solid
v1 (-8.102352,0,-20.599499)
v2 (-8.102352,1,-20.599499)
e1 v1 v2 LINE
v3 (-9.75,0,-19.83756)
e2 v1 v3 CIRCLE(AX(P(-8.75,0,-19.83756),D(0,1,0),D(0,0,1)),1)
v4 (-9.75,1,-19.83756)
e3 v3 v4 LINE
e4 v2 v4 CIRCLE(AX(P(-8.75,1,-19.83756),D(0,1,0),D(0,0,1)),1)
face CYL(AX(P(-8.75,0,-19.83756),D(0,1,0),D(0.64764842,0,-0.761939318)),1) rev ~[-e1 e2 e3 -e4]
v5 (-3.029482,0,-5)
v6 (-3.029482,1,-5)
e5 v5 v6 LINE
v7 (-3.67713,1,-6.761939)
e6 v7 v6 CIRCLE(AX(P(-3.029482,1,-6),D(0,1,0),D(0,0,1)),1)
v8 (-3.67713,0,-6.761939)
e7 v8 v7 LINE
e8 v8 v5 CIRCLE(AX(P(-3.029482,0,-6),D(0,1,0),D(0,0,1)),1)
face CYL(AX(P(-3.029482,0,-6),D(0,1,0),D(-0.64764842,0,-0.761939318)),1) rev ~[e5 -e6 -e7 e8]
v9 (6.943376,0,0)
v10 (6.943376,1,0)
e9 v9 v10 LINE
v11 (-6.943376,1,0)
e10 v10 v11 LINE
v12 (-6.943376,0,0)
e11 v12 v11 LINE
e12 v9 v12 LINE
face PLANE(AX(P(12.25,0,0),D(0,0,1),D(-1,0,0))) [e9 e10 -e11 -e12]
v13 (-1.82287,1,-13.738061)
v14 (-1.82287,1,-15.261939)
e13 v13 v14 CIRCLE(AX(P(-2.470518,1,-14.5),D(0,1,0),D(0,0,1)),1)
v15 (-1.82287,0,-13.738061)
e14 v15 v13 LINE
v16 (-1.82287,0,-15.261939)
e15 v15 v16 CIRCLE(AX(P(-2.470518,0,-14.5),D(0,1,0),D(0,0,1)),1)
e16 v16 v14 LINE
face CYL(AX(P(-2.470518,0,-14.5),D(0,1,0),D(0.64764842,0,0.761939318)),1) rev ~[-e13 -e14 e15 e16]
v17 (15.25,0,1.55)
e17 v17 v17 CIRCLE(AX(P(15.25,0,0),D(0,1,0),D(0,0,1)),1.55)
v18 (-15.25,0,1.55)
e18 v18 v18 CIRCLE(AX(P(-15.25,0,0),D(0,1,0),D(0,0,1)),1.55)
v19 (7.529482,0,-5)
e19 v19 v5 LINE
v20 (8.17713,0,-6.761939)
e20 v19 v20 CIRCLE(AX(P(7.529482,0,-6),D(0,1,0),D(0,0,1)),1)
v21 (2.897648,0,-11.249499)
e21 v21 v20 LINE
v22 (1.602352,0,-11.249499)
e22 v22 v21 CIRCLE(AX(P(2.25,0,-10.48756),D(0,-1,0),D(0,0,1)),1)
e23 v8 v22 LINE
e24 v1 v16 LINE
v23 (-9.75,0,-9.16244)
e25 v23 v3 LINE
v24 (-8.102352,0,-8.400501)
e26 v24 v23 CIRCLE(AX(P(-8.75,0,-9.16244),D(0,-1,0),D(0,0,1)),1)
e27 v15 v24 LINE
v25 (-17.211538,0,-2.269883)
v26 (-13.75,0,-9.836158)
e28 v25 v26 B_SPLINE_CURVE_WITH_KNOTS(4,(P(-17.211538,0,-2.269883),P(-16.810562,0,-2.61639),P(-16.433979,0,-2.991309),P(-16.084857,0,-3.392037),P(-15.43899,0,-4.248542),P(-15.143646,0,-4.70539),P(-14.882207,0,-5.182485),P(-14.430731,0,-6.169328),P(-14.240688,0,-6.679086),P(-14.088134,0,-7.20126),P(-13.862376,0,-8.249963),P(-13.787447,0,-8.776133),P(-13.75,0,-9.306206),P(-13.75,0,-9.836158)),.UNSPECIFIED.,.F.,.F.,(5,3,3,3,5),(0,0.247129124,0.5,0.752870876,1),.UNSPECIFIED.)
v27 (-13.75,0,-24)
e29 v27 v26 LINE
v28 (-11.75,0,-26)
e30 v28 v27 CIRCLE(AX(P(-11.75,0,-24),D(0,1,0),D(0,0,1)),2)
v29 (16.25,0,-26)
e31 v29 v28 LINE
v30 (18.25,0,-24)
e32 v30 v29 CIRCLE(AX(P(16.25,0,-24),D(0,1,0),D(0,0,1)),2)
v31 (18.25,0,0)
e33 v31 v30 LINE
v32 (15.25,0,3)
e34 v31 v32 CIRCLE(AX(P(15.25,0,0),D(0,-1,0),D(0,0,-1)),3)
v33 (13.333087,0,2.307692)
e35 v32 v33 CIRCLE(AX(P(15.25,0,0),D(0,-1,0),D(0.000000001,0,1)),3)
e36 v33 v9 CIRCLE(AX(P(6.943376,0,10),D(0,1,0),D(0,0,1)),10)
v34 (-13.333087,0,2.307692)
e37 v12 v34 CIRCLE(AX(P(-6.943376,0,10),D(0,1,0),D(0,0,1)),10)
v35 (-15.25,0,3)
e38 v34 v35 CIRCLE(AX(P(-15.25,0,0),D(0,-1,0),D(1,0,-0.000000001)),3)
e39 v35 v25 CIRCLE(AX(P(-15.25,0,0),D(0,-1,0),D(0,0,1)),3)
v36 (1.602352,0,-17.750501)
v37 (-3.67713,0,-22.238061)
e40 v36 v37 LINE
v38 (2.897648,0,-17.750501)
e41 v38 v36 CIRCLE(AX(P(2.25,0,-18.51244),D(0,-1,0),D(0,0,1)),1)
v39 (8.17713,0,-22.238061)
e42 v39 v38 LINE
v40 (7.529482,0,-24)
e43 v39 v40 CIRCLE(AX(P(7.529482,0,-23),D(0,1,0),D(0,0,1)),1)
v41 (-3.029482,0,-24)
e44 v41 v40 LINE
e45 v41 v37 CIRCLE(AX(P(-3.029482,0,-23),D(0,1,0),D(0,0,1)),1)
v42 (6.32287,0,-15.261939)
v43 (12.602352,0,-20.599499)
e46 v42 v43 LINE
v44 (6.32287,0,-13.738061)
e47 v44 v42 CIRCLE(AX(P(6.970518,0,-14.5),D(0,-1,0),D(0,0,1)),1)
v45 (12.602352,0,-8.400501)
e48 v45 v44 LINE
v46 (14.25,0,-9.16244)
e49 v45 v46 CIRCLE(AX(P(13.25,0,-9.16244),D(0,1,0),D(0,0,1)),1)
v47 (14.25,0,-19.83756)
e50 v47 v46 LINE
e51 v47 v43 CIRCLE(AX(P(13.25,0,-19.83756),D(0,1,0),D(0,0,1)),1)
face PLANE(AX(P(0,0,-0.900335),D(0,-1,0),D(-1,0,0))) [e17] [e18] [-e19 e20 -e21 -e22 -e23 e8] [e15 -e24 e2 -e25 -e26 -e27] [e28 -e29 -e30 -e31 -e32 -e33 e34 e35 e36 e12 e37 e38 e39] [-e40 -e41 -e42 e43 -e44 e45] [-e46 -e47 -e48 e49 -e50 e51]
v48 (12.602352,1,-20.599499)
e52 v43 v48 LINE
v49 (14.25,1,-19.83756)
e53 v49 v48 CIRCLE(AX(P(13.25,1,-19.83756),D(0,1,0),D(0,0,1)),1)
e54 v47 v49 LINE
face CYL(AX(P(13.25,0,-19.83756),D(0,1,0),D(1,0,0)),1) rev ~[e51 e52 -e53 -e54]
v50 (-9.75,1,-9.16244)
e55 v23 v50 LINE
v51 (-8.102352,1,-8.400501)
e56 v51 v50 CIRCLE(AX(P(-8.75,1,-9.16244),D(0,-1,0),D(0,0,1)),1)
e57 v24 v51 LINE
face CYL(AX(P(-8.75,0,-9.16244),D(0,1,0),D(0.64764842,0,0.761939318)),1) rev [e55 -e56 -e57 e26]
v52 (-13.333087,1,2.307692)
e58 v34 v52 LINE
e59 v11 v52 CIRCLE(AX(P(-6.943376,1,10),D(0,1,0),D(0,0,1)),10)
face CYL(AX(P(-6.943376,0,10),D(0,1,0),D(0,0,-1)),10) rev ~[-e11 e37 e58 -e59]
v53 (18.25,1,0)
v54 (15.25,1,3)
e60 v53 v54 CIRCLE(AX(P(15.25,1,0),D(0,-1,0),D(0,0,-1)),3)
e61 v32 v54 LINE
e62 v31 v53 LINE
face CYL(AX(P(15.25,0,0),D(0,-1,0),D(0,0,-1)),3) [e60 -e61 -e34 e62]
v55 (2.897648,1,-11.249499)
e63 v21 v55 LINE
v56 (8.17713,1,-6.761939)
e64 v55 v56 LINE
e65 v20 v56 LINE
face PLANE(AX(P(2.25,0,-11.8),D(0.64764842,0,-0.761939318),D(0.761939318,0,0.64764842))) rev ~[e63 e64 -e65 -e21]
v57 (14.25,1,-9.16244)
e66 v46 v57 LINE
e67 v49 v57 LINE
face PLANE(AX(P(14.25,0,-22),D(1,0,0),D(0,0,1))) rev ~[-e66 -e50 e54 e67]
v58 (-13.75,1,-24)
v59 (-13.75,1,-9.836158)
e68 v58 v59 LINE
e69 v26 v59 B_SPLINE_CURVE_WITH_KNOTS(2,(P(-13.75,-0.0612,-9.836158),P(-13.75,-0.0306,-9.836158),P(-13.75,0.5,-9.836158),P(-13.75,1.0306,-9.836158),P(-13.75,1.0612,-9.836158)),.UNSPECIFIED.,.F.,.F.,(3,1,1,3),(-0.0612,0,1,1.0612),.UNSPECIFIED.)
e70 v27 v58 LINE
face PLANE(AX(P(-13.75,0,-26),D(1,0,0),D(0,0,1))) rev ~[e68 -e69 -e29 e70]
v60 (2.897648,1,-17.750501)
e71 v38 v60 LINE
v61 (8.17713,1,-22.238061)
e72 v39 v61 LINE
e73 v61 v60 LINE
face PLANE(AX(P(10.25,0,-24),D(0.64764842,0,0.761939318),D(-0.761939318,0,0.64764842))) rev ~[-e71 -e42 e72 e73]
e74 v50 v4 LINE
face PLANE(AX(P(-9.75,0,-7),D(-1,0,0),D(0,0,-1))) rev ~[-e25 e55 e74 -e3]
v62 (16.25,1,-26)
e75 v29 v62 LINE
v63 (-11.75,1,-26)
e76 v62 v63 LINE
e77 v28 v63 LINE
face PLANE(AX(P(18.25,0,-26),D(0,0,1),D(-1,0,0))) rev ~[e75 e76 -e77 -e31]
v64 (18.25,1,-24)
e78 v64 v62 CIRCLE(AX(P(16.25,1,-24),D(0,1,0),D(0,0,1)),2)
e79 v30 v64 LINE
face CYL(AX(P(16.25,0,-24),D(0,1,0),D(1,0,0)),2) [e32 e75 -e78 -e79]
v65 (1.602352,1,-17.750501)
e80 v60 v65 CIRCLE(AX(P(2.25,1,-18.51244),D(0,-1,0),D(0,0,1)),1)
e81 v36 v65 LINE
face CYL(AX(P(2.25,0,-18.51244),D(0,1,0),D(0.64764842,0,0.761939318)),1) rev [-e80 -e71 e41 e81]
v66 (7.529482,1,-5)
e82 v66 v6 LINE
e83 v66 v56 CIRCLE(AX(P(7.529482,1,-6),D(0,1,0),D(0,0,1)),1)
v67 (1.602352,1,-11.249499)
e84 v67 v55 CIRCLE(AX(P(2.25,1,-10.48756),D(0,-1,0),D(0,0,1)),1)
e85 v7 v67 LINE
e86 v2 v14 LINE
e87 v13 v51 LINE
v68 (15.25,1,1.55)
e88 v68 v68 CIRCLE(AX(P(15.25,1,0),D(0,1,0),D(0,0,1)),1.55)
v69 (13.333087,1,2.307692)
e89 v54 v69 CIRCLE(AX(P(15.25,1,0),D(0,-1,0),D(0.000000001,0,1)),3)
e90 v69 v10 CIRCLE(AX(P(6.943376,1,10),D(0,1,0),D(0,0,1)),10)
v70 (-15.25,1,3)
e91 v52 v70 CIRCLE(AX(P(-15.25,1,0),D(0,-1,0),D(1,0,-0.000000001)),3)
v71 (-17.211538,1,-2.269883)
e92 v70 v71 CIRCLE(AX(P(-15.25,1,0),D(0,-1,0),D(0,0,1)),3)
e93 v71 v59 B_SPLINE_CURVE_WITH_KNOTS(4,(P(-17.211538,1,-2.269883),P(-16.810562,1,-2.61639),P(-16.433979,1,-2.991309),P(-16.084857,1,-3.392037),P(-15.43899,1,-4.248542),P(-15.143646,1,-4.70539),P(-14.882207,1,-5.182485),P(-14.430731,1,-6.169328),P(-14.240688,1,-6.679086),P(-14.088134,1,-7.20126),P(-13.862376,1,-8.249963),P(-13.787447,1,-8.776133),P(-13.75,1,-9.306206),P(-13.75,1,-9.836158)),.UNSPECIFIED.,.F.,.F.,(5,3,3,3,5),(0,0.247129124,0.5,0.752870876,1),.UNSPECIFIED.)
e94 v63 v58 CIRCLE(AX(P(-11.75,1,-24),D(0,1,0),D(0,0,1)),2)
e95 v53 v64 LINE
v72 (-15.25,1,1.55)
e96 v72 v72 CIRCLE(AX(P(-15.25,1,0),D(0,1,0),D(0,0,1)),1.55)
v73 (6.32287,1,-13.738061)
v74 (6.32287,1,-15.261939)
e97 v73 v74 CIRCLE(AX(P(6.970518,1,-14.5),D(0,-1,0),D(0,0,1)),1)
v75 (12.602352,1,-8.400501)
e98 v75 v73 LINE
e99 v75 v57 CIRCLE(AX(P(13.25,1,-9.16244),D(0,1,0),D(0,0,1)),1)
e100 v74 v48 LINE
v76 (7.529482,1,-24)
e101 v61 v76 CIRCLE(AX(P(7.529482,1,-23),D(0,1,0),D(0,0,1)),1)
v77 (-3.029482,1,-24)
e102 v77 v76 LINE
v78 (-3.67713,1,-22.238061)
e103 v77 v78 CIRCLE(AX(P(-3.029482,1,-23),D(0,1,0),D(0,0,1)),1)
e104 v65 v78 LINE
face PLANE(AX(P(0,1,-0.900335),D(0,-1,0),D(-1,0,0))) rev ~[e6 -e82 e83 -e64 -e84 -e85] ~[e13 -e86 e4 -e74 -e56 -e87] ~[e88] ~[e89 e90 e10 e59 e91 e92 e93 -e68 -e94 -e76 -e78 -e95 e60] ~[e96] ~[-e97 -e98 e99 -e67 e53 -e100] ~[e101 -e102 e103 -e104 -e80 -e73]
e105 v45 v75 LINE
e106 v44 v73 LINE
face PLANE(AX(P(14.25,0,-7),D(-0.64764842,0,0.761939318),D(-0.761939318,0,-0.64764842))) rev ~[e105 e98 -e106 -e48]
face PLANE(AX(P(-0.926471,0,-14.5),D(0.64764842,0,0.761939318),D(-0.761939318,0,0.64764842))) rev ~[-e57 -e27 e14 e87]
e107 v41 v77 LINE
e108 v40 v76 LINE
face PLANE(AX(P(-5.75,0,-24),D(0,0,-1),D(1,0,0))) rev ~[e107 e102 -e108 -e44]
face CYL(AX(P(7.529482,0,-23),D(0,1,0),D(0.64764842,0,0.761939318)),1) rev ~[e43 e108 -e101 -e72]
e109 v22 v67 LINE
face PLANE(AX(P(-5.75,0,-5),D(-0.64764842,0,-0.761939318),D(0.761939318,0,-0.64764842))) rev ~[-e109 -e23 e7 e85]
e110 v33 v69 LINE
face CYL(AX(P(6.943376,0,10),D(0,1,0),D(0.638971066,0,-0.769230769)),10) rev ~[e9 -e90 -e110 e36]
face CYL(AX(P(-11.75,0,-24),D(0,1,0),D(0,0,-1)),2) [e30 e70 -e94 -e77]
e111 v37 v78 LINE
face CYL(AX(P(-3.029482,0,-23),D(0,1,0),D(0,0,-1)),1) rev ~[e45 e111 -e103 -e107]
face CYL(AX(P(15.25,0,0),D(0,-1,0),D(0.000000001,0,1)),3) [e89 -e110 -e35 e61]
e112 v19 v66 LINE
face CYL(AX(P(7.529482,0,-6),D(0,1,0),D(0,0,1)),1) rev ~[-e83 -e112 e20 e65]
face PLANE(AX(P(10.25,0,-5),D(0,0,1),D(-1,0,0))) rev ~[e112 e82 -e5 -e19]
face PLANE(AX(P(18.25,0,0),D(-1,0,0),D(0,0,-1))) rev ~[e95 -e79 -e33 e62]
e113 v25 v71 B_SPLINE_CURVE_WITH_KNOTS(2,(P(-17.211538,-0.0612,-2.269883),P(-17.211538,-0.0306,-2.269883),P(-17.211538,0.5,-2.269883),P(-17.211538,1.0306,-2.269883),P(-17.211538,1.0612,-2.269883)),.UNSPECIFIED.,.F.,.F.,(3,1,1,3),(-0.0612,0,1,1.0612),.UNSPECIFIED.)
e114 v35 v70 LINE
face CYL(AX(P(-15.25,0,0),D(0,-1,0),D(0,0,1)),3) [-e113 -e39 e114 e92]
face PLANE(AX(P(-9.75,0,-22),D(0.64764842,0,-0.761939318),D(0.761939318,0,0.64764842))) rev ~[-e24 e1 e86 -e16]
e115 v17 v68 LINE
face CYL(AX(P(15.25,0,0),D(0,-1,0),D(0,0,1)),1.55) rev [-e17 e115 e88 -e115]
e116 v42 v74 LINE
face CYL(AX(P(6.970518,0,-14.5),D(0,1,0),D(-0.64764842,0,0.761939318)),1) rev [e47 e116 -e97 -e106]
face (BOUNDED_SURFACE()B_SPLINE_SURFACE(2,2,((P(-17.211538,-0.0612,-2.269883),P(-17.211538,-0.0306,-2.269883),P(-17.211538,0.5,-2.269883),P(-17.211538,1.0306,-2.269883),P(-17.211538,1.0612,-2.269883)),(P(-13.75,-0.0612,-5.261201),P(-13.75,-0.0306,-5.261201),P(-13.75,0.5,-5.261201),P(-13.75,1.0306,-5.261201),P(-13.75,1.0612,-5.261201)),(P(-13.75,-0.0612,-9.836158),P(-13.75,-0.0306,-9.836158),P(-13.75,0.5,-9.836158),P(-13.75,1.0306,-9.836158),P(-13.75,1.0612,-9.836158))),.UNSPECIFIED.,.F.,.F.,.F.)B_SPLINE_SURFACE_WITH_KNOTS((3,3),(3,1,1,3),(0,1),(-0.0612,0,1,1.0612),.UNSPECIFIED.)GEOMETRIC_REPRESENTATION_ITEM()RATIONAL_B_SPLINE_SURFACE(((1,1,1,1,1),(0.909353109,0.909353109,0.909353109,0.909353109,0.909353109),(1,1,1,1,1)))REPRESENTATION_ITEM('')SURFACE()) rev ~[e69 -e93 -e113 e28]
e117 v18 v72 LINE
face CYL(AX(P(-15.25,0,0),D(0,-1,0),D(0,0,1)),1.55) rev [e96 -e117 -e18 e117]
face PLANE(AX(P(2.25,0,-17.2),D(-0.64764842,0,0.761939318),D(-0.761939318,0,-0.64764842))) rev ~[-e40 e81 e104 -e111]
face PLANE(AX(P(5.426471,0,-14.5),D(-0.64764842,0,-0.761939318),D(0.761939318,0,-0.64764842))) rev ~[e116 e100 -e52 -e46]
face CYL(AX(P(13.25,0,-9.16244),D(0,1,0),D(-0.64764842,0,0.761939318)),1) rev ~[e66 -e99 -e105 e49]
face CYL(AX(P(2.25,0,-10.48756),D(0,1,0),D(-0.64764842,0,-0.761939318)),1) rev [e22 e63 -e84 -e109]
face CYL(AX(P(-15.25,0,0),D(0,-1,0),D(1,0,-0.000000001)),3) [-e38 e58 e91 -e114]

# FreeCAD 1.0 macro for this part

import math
import FreeCAD as App
import Part
import Sketcher
from FreeCAD import Vector


def edges_at(feature, points):
    """Names of the edges that pass closest to the given points."""
    edges = feature.Shape.Edges
    near = lambda p: min(range(len(edges)), key=lambda i: edges[i].distToShape(Part.Vertex(*p))[0])
    return sorted({f"Edge{near(p) + 1}" for p in points})

doc = App.newDocument("Part")
body = doc.addObject("PartDesign::Body", "Body")

# Sketch on XZ plane
sketch1 = body.newObject("Sketcher::SketchObject", "Sketch")
sketch1.AttachmentSupport = (doc.getObject("XZ_Plane"), [""])
sketch1.MapMode = "FlatFace"
sketch1.addGeometry([
    Part.LineSegment(Vector(-13.8, -26, 0), Vector(-13.8, -3, 0)),  # 0
    Part.LineSegment(Vector(-13.8, -3, 0), Vector(-15.2, -3, 0)),  # 1
    Part.ArcOfCircle(Part.Circle(Vector(-15.2, 0, 0), Vector(0, 0, 1), 3), math.radians(90), math.radians(270)),  # 2
    Part.ArcOfCircle(Part.Circle(Vector(-15.2, 0, 0), Vector(0, 0, 1), 3), math.radians(0), math.radians(90)),  # 3
    Part.LineSegment(Vector(-12.2, 0, 0), Vector(12.2, 0, 0)),  # 4
    Part.ArcOfCircle(Part.Circle(Vector(15.2, 0, 0), Vector(0, 0, 1), 3), math.radians(90), math.radians(180)),  # 5
    Part.ArcOfCircle(Part.Circle(Vector(15.2, 0, 0), Vector(0, 0, 1), 3), math.radians(0), math.radians(90)),  # 6
    Part.LineSegment(Vector(18.2, 0, 0), Vector(18.2, -26, 0)),  # 7
    Part.LineSegment(Vector(18.2, -26, 0), Vector(-13.8, -26, 0)),  # 8
    Part.LineSegment(Vector(-5.8, -5, 0), Vector(2.2, -11.8, 0)),  # 9
    Part.LineSegment(Vector(2.2, -11.8, 0), Vector(10.2, -5, 0)),  # 10
    Part.LineSegment(Vector(10.2, -5, 0), Vector(-5.8, -5, 0)),  # 11
    Part.LineSegment(Vector(-0.9, -14.5, 0), Vector(-9.8, -7, 0)),  # 12
    Part.LineSegment(Vector(-9.8, -7, 0), Vector(-9.8, -22, 0)),  # 13
    Part.LineSegment(Vector(-9.8, -22, 0), Vector(-0.9, -14.5, 0)),  # 14
    Part.LineSegment(Vector(14.2, -7, 0), Vector(5.4, -14.5, 0)),  # 15
    Part.LineSegment(Vector(5.4, -14.5, 0), Vector(14.2, -22, 0)),  # 16
    Part.LineSegment(Vector(14.2, -22, 0), Vector(14.2, -7, 0)),  # 17
    Part.LineSegment(Vector(2.2, -17.2, 0), Vector(-5.8, -24, 0)),  # 18
    Part.LineSegment(Vector(-5.8, -24, 0), Vector(10.2, -24, 0)),  # 19
    Part.LineSegment(Vector(10.2, -24, 0), Vector(2.2, -17.2, 0)),  # 20
    Part.Circle(Vector(15.2, 0, 0), Vector(0, 0, 1), 1.6),  # 21
    Part.Circle(Vector(-15.2, 0, 0), Vector(0, 0, 1), 1.6),  # 22
], False)
sketch1.addConstraint([
    Sketcher.Constraint("Coincident", 0, 2, 1, 1),
    Sketcher.Constraint("Tangent", 1, 2, 2, 2),
    Sketcher.Constraint("Tangent", 2, 1, 3, 2),
    Sketcher.Constraint("Coincident", 3, 1, 4, 1),
    Sketcher.Constraint("Coincident", 4, 2, 5, 2),
    Sketcher.Constraint("Tangent", 5, 1, 6, 2),
    Sketcher.Constraint("Tangent", 6, 1, 7, 1),
    Sketcher.Constraint("Coincident", 7, 2, 8, 1),
    Sketcher.Constraint("Coincident", 8, 2, 0, 1),
    Sketcher.Constraint("Coincident", 9, 2, 10, 1),
    Sketcher.Constraint("Coincident", 10, 2, 11, 1),
    Sketcher.Constraint("Coincident", 11, 2, 9, 1),
    Sketcher.Constraint("Coincident", 12, 2, 13, 1),
    Sketcher.Constraint("Coincident", 13, 2, 14, 1),
    Sketcher.Constraint("Coincident", 14, 2, 12, 1),
    Sketcher.Constraint("Coincident", 15, 2, 16, 1),
    Sketcher.Constraint("Coincident", 16, 2, 17, 1),
    Sketcher.Constraint("Coincident", 17, 2, 15, 1),
    Sketcher.Constraint("Coincident", 18, 2, 19, 1),
    Sketcher.Constraint("Coincident", 19, 2, 20, 1),
    Sketcher.Constraint("Coincident", 20, 2, 18, 1),
    Sketcher.Constraint("Vertical", 0),
    Sketcher.Constraint("Horizontal", 1),
    Sketcher.Constraint("Horizontal", 4),
    Sketcher.Constraint("Vertical", 7),
    Sketcher.Constraint("Horizontal", 8),
    Sketcher.Constraint("Horizontal", 11),
    Sketcher.Constraint("Vertical", 13),
    Sketcher.Constraint("Vertical", 17),
    Sketcher.Constraint("Horizontal", 19),
    Sketcher.Constraint("Coincident", 21, 3, 5, 3),
    Sketcher.Constraint("Coincident", 22, 3, 2, 3),
    Sketcher.Constraint("Equal", 2, 3),
    Sketcher.Constraint("Equal", 3, 5),
    Sketcher.Constraint("Equal", 5, 6),
    Sketcher.Constraint("Equal", 21, 22),
    Sketcher.Constraint("Symmetric", 2, 3, 5, 3, -1, 1),
    Sketcher.Constraint("Symmetric", 2, 1, 5, 1, -2),
    Sketcher.Constraint("PointOnObject", 3, 1, -1),
    Sketcher.Constraint("Parallel", 9, 12),
    Sketcher.Constraint("Parallel", 10, 14),
    Sketcher.Constraint("Parallel", 14, 15),
    Sketcher.Constraint("Parallel", 12, 16),
    Sketcher.Constraint("Parallel", 15, 18),
    Sketcher.Constraint("Parallel", 16, 20),
    Sketcher.Constraint("Horizontal", 14, 2, 15, 2),
    Sketcher.Constraint("Horizontal", 13, 2, 16, 2),
    Sketcher.Constraint("Horizontal", 12, 2, 17, 2),
    Sketcher.Constraint("Vertical", 1, 2, 2, 1),
    Sketcher.Constraint("Vertical", 11, 2, 18, 2),
    Sketcher.Constraint("Vertical", 10, 2, 19, 2),
    Sketcher.Constraint("Radius", 2, 3.0),
    Sketcher.Constraint("Diameter", 21, 3.1),
    Sketcher.Constraint("DistanceX", 8, 2, 8, 1, 32.0),
    Sketcher.Constraint("DistanceX", 11, 2, 11, 1, 16.0),
    Sketcher.Constraint("DistanceY", 0, 1, 0, 2, 23.0),
    Sketcher.Constraint("DistanceY", 13, 2, 13, 1, 15.0),
    Sketcher.Constraint("DistanceX", 1, 2, 1, 1, 1.5),
    Sketcher.Constraint("DistanceY", 10, 2, -1, 1, 5.0),
    Sketcher.Constraint("DistanceY", 12, 2, -1, 1, 7.0),
    Sketcher.Constraint("DistanceY", 18, 2, -1, 1, 24.0),
    Sketcher.Constraint("DistanceX", 9, 2, 4, 2, 10.0),
    Sketcher.Constraint("DistanceX", 12, 2, 11, 2, 4.0),
    Sketcher.Constraint("DistanceX", 16, 2, 7, 2, 4.0),
    Sketcher.Constraint("DistanceY", 9, 2, -1, 1, 11.8),
])
pad1 = body.newObject("PartDesign::Pad", "Pad")
pad1.Profile = sketch1
pad1.Length = 1
pad1.Reversed = True
doc.recompute()

fillet = body.newObject("PartDesign::Fillet", "Fillet")
fillet.Base = (pad1, edges_at(pad1, [(-13.75, 0.5, -3), (12.25, 0.5, 0), (-12.25, 0.5, 0)]))
fillet.Radius = 10
doc.recompute()

fillet2 = body.newObject("PartDesign::Fillet", "Fillet001")
fillet2.Base = (fillet, edges_at(fillet, [(-13.75, 0.5, -26), (18.25, 0.5, -26)]))
fillet2.Radius = 2
doc.recompute()

fillet3 = body.newObject("PartDesign::Fillet", "Fillet002")
fillet3.Base = (fillet2, edges_at(fillet2, [
    (-5.75, 0.5, -5),
    (10.25, 0.5, -5),
    (2.25, 0.5, -11.8),
    (-9.75, 0.5, -22),
    (-9.75, 0.5, -7),
    (-0.926, 0.5, -14.5),
    (14.25, 0.5, -22),
    (5.426, 0.5, -14.5),
    (14.25, 0.5, -7),
    (10.25, 0.5, -24),
    (-5.75, 0.5, -24),
    (2.25, 0.5, -17.2),
]))
fillet3.Radius = 1

doc.recompute()
